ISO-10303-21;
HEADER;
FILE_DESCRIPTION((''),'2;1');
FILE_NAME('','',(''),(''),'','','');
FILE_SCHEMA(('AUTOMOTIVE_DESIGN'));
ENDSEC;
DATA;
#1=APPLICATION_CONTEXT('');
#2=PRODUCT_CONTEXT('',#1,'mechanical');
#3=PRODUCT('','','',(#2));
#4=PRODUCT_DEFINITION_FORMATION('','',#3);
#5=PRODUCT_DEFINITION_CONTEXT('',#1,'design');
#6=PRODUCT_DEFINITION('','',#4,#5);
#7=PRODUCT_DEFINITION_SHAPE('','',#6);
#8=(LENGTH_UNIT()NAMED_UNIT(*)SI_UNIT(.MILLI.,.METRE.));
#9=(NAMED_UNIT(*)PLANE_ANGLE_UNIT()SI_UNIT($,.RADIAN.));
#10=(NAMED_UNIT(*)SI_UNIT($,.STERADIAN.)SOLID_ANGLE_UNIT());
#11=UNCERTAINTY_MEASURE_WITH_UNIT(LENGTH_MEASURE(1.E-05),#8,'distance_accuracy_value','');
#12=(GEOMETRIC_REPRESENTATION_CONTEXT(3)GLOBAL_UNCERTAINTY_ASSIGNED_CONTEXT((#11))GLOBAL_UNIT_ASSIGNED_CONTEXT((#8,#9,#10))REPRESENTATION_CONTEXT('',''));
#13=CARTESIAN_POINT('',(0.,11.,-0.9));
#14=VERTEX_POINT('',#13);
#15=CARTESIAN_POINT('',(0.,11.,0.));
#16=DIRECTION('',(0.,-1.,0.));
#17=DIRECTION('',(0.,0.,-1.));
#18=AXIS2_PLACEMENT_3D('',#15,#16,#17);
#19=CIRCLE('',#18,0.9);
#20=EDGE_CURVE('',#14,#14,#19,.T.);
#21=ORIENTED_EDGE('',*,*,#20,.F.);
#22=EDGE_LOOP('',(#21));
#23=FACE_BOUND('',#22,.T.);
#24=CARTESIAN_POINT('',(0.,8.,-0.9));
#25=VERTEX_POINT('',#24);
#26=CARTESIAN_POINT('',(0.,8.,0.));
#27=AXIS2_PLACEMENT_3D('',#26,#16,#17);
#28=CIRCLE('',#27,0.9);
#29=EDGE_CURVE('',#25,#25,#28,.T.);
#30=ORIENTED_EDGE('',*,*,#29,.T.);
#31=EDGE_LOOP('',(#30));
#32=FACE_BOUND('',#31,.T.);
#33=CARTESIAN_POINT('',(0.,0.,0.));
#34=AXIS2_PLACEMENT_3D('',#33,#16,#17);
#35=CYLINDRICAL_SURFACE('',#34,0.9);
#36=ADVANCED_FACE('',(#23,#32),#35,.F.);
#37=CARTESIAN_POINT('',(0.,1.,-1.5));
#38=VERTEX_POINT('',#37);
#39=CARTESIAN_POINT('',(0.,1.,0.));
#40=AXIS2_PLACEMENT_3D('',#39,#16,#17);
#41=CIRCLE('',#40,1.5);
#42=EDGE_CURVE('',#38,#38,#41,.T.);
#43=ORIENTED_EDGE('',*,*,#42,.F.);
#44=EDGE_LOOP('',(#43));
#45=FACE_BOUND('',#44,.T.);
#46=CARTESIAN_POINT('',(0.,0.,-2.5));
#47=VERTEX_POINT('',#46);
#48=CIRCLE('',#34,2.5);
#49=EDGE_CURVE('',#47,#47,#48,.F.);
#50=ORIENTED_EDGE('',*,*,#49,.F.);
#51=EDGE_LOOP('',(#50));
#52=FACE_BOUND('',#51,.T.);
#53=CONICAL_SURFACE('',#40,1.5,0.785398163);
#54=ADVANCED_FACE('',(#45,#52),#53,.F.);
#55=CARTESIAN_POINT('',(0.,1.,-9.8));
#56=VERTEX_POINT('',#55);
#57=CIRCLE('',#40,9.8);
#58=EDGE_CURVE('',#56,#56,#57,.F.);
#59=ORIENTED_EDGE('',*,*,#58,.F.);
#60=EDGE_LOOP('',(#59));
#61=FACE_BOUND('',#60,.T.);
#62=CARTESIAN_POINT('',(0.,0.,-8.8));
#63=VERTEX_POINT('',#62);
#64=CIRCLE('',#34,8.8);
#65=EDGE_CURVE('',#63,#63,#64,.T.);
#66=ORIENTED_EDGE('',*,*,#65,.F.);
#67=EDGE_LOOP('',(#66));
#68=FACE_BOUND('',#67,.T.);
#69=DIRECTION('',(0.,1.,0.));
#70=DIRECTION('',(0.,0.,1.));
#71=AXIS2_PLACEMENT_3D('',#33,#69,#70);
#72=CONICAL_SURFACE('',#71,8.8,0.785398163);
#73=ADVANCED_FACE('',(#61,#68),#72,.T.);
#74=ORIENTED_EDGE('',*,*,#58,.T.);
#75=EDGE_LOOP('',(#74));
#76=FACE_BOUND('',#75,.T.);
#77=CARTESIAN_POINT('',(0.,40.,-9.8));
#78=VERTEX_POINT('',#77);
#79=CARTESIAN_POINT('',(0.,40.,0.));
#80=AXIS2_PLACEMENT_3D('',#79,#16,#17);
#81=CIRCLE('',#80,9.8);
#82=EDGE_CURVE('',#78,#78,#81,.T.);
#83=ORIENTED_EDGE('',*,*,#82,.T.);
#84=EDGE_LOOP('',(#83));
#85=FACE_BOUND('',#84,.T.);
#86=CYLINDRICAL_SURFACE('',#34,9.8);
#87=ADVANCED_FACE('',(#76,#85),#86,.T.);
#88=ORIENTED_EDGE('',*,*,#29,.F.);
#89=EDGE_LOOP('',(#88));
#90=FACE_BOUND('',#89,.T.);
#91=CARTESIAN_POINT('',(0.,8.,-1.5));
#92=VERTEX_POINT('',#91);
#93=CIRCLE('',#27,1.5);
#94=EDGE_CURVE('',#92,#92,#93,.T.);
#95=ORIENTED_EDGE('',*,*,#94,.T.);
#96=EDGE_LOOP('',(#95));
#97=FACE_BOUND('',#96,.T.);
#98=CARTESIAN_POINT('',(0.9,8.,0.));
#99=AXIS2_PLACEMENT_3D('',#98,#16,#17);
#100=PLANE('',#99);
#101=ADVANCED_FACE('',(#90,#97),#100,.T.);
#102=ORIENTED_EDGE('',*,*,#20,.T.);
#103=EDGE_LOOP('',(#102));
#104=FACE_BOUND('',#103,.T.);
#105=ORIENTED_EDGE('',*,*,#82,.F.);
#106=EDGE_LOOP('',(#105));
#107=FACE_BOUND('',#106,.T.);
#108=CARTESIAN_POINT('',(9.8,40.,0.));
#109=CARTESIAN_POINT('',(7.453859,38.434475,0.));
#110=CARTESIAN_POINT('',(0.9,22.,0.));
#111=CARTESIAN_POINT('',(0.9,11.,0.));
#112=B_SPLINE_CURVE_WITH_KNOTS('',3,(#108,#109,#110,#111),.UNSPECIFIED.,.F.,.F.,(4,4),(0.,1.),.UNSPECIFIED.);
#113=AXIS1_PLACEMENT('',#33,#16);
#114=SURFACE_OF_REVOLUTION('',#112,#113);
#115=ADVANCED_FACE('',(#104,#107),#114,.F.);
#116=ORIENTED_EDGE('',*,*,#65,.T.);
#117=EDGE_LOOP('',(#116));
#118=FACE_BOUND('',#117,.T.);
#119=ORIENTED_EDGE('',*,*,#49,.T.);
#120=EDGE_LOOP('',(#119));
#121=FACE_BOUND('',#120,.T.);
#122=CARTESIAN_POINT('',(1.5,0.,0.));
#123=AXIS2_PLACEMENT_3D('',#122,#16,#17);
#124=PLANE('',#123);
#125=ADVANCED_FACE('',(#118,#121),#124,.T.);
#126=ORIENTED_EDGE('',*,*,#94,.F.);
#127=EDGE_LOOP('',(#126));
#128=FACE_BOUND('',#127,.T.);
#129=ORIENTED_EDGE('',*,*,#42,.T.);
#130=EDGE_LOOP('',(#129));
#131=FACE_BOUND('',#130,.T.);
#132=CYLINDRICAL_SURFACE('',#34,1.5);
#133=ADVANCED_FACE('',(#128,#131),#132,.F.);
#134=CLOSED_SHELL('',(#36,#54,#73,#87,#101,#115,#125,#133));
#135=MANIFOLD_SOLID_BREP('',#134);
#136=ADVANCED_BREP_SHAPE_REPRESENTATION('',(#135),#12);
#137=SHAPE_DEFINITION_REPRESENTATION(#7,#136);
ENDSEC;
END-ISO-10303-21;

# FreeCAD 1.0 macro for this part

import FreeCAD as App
import Part
import Sketcher
from FreeCAD import Vector
Q = App.Units.Quantity


def edges_at(feature, points):
    """Names of the edges that pass closest to the given points."""
    edges = feature.Shape.Edges
    near = lambda p: min(range(len(edges)), key=lambda i: edges[i].distToShape(Part.Vertex(*p))[0])
    return sorted({f"Edge{near(p) + 1}" for p in points})

doc = App.newDocument("Part")
body = doc.addObject("PartDesign::Body", "Body")

sketch1 = body.newObject("Sketcher::SketchObject", "Sketch")
sketch1.AttachmentSupport = (doc.getObject("XY_Plane"), [""])
sketch1.MapMode = "FlatFace"
sketch1.addGeometry([
    Part.LineSegment(Vector(1.5, 0, 0), Vector(9.8, 0, 0)),
    Part.LineSegment(Vector(9.8, 0, 0), Vector(9.8, 40, 0)),
    Part.BSplineCurve([Vector(9.8, 40, 0), Vector(7.453859, 38.434475, 0), Vector(0.9, 22, 0), Vector(0.9, 11, 0)], [4, 4], [0, 1], False, 3, [1, 1, 1, 1], False),
    Part.LineSegment(Vector(0.9, 11, 0), Vector(0.9, 8, 0)),
    Part.LineSegment(Vector(0.9, 8, 0), Vector(1.5, 8, 0)),
    Part.LineSegment(Vector(1.5, 8, 0), Vector(1.5, 0, 0)),
], False)
sketch1.addConstraint([
    Sketcher.Constraint("Block", 2),
    Sketcher.Constraint("Coincident", 0, 2, 1, 1),
    Sketcher.Constraint("Coincident", 1, 2, 2, 1),
    Sketcher.Constraint("Coincident", 2, 2, 3, 1),
    Sketcher.Constraint("Coincident", 3, 2, 4, 1),
    Sketcher.Constraint("Coincident", 4, 2, 5, 1),
    Sketcher.Constraint("Coincident", 5, 2, 0, 1),
    Sketcher.Constraint("Horizontal", 0),
    Sketcher.Constraint("Vertical", 1),
    Sketcher.Constraint("Vertical", 3),
    Sketcher.Constraint("Horizontal", 4),
    Sketcher.Constraint("Vertical", 5),
    Sketcher.Constraint("PointOnObject", 0, 2, -1),
    Sketcher.Constraint("DistanceY", 3, 2, 3, 1, Q("3 mm")),
    Sketcher.Constraint("DistanceX", 0, 1, 0, 2, Q("8.3 mm")),
])
revolution = body.newObject("PartDesign::Revolution", "Revolution")
revolution.Profile = sketch1
revolution.ReferenceAxis = (sketch1, ["V_Axis"])
revolution.Angle = 360
doc.recompute()

chamfer = body.newObject("PartDesign::Chamfer", "Chamfer")
chamfer.Base = (revolution, edges_at(revolution, [(-1.5, 0, 0), (-9.8, 0, 0)]))
chamfer.Size = 1

doc.recompute()
